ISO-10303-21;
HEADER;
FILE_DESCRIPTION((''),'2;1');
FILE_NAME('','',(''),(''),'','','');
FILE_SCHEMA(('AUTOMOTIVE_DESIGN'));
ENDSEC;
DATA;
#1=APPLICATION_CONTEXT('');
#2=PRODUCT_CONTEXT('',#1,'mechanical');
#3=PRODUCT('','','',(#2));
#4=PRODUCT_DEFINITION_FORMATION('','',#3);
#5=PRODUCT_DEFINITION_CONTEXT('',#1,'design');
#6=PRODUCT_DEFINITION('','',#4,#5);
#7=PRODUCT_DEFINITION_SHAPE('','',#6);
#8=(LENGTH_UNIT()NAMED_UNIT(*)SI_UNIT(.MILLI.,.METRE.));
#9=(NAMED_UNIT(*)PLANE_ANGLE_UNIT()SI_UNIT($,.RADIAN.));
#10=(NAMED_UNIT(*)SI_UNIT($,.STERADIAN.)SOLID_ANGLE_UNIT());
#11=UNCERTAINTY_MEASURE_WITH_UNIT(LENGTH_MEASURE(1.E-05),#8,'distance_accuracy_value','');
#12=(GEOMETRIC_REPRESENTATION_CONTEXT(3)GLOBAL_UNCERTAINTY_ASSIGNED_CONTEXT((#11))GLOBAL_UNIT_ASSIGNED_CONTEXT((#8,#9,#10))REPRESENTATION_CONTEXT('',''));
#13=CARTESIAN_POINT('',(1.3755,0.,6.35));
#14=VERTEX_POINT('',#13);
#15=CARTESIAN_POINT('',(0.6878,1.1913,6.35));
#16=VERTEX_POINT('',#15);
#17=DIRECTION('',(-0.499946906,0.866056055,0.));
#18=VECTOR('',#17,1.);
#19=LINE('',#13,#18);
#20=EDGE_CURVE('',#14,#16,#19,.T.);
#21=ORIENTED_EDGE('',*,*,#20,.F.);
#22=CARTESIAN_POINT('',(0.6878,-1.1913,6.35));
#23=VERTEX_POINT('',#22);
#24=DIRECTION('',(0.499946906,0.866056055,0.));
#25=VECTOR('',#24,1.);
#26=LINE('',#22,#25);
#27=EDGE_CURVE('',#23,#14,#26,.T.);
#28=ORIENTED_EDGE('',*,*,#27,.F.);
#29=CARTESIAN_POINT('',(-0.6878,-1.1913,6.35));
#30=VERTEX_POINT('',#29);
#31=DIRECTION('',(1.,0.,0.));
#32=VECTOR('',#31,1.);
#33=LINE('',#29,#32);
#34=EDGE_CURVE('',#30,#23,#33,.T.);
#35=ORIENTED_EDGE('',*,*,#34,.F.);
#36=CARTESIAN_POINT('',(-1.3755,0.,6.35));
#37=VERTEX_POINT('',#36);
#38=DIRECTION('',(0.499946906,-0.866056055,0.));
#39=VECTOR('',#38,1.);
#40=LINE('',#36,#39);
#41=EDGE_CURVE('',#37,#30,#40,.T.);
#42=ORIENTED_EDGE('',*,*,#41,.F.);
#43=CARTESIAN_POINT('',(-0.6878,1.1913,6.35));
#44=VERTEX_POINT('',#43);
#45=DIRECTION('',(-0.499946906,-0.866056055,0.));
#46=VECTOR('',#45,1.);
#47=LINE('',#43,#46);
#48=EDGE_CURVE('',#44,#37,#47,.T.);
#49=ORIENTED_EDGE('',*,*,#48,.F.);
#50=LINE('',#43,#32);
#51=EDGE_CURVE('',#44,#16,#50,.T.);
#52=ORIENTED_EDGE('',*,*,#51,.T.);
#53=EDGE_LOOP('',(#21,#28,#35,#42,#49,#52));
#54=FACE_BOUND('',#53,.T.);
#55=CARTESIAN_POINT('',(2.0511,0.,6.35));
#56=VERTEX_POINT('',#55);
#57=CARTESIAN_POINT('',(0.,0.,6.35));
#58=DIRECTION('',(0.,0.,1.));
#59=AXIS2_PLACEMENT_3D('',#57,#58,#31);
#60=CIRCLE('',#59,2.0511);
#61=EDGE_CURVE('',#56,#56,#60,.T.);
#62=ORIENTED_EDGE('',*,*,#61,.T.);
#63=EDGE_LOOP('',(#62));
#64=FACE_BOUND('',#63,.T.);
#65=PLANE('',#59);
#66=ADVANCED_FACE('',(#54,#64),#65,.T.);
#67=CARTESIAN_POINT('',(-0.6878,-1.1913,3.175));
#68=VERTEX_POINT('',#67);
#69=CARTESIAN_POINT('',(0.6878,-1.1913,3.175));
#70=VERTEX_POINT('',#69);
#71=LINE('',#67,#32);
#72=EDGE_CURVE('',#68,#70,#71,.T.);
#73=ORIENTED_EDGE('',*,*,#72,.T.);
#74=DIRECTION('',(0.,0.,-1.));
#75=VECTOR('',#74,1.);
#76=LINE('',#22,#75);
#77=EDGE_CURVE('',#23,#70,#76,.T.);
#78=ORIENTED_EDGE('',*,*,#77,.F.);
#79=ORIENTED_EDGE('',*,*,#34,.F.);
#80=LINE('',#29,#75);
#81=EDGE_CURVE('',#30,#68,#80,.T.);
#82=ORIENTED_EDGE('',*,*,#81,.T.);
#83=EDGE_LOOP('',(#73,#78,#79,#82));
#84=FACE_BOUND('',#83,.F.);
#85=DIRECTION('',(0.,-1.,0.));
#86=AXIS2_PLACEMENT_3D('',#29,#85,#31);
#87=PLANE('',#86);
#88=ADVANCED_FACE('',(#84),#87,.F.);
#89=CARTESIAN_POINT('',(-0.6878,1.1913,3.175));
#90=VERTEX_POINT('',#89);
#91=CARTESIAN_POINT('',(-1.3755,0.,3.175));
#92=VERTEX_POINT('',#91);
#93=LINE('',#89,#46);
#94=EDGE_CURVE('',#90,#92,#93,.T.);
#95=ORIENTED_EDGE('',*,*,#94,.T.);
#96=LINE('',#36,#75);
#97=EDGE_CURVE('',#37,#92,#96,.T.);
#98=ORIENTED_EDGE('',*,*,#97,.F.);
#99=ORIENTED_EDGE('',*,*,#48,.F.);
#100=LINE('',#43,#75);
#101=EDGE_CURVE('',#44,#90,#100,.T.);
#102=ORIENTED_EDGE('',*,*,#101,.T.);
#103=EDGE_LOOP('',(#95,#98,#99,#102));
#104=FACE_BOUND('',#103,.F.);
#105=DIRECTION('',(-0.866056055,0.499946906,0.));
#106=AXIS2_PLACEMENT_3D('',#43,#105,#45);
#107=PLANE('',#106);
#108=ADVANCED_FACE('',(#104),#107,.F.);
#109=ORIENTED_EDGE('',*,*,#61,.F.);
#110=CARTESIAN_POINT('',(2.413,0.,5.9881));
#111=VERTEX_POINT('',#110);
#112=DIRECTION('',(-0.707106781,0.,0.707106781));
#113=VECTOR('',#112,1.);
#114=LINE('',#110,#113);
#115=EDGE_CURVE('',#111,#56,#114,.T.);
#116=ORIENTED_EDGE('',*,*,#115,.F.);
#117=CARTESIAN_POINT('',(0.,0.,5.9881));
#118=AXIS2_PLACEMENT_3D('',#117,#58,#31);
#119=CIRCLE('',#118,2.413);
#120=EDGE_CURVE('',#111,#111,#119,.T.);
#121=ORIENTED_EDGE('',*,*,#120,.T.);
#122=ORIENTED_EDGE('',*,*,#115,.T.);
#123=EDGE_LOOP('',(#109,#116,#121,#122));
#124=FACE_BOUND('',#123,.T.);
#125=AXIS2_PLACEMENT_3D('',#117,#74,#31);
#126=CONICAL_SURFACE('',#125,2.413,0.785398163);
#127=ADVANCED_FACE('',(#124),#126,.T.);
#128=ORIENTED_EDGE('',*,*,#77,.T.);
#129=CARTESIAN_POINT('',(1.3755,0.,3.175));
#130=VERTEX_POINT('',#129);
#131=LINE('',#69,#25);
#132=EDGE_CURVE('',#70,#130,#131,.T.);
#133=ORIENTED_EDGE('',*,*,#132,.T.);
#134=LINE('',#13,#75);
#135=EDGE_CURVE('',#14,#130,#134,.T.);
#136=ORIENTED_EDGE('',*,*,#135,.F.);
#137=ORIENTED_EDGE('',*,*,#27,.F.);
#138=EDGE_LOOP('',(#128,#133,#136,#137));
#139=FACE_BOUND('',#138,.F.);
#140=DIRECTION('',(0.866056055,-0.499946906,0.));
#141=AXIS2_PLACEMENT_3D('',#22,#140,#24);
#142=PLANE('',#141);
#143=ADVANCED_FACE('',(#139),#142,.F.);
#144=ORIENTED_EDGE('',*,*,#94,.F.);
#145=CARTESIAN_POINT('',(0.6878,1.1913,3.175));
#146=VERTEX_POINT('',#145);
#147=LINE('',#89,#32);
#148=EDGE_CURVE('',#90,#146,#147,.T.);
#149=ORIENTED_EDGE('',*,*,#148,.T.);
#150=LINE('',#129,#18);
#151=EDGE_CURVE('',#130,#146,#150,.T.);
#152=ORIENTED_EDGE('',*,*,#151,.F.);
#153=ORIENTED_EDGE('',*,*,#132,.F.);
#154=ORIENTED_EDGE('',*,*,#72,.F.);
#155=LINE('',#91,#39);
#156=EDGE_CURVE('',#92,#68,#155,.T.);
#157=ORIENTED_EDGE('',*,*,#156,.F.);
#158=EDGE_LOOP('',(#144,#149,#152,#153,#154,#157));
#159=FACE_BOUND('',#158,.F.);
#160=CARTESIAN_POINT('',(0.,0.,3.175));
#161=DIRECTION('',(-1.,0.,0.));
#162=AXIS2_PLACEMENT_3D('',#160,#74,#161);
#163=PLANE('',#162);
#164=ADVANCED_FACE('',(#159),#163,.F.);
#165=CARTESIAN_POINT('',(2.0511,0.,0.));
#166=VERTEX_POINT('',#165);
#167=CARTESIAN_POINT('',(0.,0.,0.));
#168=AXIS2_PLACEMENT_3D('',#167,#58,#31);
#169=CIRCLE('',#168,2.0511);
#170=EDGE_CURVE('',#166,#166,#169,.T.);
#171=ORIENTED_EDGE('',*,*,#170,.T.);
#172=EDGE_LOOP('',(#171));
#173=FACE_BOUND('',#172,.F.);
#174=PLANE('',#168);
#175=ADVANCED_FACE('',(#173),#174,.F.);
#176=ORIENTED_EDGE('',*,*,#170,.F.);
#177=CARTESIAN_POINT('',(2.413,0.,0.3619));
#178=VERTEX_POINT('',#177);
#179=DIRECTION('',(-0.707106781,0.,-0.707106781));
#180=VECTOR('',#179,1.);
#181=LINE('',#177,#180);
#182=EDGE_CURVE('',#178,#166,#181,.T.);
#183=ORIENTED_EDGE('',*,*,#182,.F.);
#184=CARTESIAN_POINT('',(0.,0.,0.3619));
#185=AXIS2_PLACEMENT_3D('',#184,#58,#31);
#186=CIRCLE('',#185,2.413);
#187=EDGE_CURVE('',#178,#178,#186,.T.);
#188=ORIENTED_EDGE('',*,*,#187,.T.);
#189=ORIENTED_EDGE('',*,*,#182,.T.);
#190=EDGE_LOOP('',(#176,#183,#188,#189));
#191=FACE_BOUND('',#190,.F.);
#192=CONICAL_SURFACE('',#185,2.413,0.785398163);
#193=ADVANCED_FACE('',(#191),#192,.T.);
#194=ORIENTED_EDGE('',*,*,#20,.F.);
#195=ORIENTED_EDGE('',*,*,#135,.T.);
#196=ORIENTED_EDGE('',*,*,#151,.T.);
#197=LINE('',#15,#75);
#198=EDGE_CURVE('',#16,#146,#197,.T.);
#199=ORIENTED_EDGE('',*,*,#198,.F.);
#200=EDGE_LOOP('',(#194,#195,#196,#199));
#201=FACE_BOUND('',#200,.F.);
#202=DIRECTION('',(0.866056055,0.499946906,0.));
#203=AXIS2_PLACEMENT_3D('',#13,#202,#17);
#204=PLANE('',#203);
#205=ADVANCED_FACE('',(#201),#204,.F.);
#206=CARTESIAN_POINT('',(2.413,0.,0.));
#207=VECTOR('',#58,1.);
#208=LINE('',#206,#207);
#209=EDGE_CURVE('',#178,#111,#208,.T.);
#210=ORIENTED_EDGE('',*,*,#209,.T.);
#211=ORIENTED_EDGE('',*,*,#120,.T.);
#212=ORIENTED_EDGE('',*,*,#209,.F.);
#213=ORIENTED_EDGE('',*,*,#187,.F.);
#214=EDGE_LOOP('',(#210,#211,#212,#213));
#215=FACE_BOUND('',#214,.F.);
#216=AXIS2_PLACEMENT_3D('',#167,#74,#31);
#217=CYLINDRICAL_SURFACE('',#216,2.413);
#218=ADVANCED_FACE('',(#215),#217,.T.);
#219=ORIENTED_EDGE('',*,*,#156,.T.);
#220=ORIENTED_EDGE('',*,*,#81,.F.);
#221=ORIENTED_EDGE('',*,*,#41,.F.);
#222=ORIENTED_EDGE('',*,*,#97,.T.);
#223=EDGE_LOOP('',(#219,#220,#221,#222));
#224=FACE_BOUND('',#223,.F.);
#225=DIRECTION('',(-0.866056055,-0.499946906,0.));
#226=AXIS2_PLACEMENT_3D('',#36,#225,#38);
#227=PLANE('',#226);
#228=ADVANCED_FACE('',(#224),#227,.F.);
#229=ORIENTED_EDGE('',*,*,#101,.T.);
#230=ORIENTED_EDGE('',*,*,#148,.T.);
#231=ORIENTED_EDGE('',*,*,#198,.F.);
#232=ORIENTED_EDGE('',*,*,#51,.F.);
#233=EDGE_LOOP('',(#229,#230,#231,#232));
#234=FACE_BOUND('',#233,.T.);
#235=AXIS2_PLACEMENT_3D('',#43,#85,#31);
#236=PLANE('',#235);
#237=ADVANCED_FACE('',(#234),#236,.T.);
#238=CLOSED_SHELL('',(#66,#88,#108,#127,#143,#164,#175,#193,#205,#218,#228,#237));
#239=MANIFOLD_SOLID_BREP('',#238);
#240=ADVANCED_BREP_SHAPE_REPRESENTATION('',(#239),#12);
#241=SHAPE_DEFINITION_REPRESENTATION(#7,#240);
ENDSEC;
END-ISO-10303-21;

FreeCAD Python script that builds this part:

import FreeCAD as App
import Part
import Sketcher

V = App.Vector
Q = App.Units.Quantity


def edges_at(feature, points):
    """Names of the edges that pass closest to the given points."""
    edges = feature.Shape.Edges
    near = lambda p: min(range(len(edges)), key=lambda i: edges[i].distToShape(Part.Vertex(*p))[0])
    return sorted({f"Edge{near(p) + 1}" for p in points})

doc = App.newDocument("Part")
params = doc.addObject("Spreadsheet::Sheet", "Params")
for row, (alias, value) in enumerate([
    ("sketch1_diameter", "0.19 in"),
    ("pad1_length", "0.25 in"),
    ("chamfer_size", "0.3619 mm"),
    ("pocket1_length", "0.125 in"),
], start=1):
    params.set(f"A{row}", alias)
    params.set(f"B{row}", "=" + value)
    params.setAlias(f"B{row}", alias)

body = doc.addObject("PartDesign::Body", "Body")

# Sketch on XY plane
sketch1 = doc.addObject("Sketcher::SketchObject", "Sketch")
body.addObject(sketch1)
sketch1.AttachmentSupport = (doc.XY_Plane, [""])
sketch1.MapMode = "FlatFace"
sketch1.addGeometry(Part.Circle(V(0, 0, 0), V(0, 0, 1), 2.4), False)
sketch1.addConstraint(Sketcher.Constraint("Coincident", 0, 3, -1, 1))
sketch1.addConstraint(Sketcher.Constraint("Diameter", 0, Q("0.19 in")))
sketch1.setExpression("Constraints[1]", "Params.sketch1_diameter")
pad1 = doc.addObject("PartDesign::Pad", "Pad")
body.addObject(pad1)
pad1.Profile = sketch1
pad1.setExpression("Length", "Params.pad1_length")
doc.recompute()

chamfer = doc.addObject("PartDesign::Chamfer", "Chamfer")
body.addObject(chamfer)
chamfer.Base = (pad1, edges_at(pad1, [(-2.413, 0, 0), (-2.413, 0, 6.35)]))
chamfer.setExpression("Size", "Params.chamfer_size")

# Sketch on XY plane
sketch2 = doc.addObject("Sketcher::SketchObject", "Sketch001")
body.addObject(sketch2)
sketch2.AttachmentSupport = (doc.XY_Plane, [""])
sketch2.MapMode = "FlatFace"
sketch2.AttachmentOffset = App.Placement(V(0, 0, 0.25 * 25.4), App.Rotation())
sketch2.addGeometry(Part.LineSegment(V(0.7, 1.2, 0), V(-0.7, 1.2, 0)), False)
sketch2.addGeometry(Part.LineSegment(V(-0.7, 1.2, 0), V(-1.4, 0, 0)), False)
sketch2.addGeometry(Part.LineSegment(V(-1.4, 0, 0), V(-0.7, -1.2, 0)), False)
sketch2.addGeometry(Part.LineSegment(V(-0.7, -1.2, 0), V(0.7, -1.2, 0)), False)
sketch2.addGeometry(Part.LineSegment(V(0.7, -1.2, 0), V(1.4, 0, 0)), False)
sketch2.addGeometry(Part.LineSegment(V(1.4, 0, 0), V(0.7, 1.2, 0)), False)
sketch2.addConstraint(Sketcher.Constraint("Coincident", 0, 2, 1, 1))
sketch2.addConstraint(Sketcher.Constraint("Coincident", 1, 2, 2, 1))
sketch2.addConstraint(Sketcher.Constraint("Coincident", 2, 2, 3, 1))
sketch2.addConstraint(Sketcher.Constraint("Coincident", 3, 2, 4, 1))
sketch2.addConstraint(Sketcher.Constraint("Coincident", 4, 2, 5, 1))
sketch2.addConstraint(Sketcher.Constraint("Coincident", 5, 2, 0, 1))
sketch2.addConstraint(Sketcher.Constraint("Horizontal", 0))
sketch2.addConstraint(Sketcher.Constraint("Horizontal", 3))
sketch2.addConstraint(Sketcher.Constraint("Symmetric", 0, 2, 3, 2, -1, 1))
sketch2.addConstraint(Sketcher.Constraint("Symmetric", 1, 2, 4, 2, -1, 1))
sketch2.addConstraint(Sketcher.Constraint("PointOnObject", 1, 2, -1))
sketch2.addConstraint(Sketcher.Constraint("Parallel", 2, 5))
sketch2.addConstraint(Sketcher.Constraint("Vertical", 0, 2, 2, 2))
sketch2.addConstraint(Sketcher.Constraint("DistanceX", 0, 2, 0, 1, Q("1.3756 mm")))
sketch2.addConstraint(Sketcher.Constraint("DistanceY", -1, 1, 0, 2, Q("0.0469 in")))
sketch2.addConstraint(Sketcher.Constraint("DistanceX", 1, 2, 4, 2, Q("0.1083 in")))
pocket1 = doc.addObject("PartDesign::Pocket", "Pocket")
body.addObject(pocket1)
pocket1.Profile = sketch2
pocket1.setExpression("Length", "Params.pocket1_length")

doc.recompute()
